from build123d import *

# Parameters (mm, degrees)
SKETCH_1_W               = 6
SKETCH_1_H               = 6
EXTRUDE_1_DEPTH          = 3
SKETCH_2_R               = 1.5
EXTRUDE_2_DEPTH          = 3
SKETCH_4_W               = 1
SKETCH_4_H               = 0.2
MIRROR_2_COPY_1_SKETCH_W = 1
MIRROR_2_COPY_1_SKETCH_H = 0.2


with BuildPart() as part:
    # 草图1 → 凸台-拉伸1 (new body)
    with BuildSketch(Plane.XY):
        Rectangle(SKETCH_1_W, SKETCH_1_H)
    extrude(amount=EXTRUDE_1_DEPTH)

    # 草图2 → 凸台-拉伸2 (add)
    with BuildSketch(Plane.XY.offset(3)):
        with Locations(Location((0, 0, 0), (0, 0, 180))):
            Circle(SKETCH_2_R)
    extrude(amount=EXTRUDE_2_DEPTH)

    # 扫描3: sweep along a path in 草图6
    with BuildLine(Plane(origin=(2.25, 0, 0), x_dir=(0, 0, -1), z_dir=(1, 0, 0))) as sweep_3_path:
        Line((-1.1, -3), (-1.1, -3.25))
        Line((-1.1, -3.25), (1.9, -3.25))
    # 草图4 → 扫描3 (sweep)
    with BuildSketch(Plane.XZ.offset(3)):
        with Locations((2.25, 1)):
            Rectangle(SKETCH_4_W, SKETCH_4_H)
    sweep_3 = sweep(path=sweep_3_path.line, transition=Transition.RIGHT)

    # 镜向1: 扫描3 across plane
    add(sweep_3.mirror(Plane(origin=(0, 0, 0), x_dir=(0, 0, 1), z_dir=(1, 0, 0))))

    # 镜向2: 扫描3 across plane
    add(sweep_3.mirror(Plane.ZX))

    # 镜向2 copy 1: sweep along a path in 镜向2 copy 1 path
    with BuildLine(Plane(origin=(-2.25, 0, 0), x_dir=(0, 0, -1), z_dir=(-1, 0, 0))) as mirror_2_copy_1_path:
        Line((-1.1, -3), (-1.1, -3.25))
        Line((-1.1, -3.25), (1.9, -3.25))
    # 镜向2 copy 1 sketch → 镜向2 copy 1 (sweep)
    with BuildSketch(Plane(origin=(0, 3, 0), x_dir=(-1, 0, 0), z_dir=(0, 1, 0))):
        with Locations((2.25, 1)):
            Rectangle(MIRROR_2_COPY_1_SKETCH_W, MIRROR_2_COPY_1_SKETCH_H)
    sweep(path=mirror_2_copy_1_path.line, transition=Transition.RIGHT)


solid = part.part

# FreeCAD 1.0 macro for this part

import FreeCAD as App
import Part
import Sketcher

V = App.Vector
Q = App.Units.Quantity

doc = App.newDocument("Part")
body = doc.addObject("PartDesign::Body", "Body")

# Sketch on XY plane
sketch1 = body.newObject("Sketcher::SketchObject", "Sketch")
sketch1.AttachmentSupport = (doc.getObject("XY_Plane"), [""])
sketch1.MapMode = "FlatFace"
sketch1.addGeometry([
    Part.LineSegment(V(-3, 3, 0), V(-3, -3, 0)),
    Part.LineSegment(V(-3, -3, 0), V(3, -3, 0)),
    Part.LineSegment(V(3, -3, 0), V(3, 3, 0)),
    Part.LineSegment(V(3, 3, 0), V(-3, 3, 0)),
], False)
sketch1.addConstraint([
    Sketcher.Constraint("Coincident", 0, 2, 1, 1),
    Sketcher.Constraint("Coincident", 1, 2, 2, 1),
    Sketcher.Constraint("Coincident", 2, 2, 3, 1),
    Sketcher.Constraint("Coincident", 3, 2, 0, 1),
    Sketcher.Constraint("Vertical", 0),
    Sketcher.Constraint("Horizontal", 1),
    Sketcher.Constraint("Vertical", 2),
    Sketcher.Constraint("Horizontal", 3),
    Sketcher.Constraint("Symmetric", 0, 2, 2, 2, -1, 1),
    Sketcher.Constraint("Equal", 3, 0),
    Sketcher.Constraint("DistanceX", 1, 1, 1, 2, Q("6 mm")),
])
pad1 = body.newObject("PartDesign::Pad", "Pad")
pad1.Profile = sketch1
pad1.Length = 3

# Sketch on XY plane
sketch2 = body.newObject("Sketcher::SketchObject", "Sketch001")
sketch2.AttachmentSupport = (doc.getObject("XY_Plane"), [""])
sketch2.MapMode = "FlatFace"
sketch2.AttachmentOffset = App.Placement(V(0, 0, 3), App.Rotation())
sketch2.addGeometry(Part.Circle(V(0, 0, 0), V(0, 0, 1), 1.5), False)
sketch2.addConstraint([
    Sketcher.Constraint("Coincident", 0, 3, -1, 1),
    Sketcher.Constraint("Diameter", 0, Q("3 mm")),
])
pad2 = body.newObject("PartDesign::Pad", "Pad001")
pad2.Profile = sketch2
pad2.Length = 3

# Sketch on XZ plane
sketch3 = body.newObject("Sketcher::SketchObject", "Sketch002")
sketch3.AttachmentSupport = (doc.getObject("XZ_Plane"), [""])
sketch3.MapMode = "FlatFace"
sketch3.AttachmentOffset = App.Placement(V(0, 0, 3), App.Rotation())
sketch3.addGeometry([
    Part.LineSegment(V(1.75, 1.1, 0), V(1.75, 0.9, 0)),
    Part.LineSegment(V(1.75, 0.9, 0), V(2.75, 0.9, 0)),
    Part.LineSegment(V(2.75, 0.9, 0), V(2.75, 1.1, 0)),
    Part.LineSegment(V(2.75, 1.1, 0), V(1.75, 1.1, 0)),
], False)
sketch3.addConstraint([
    Sketcher.Constraint("Coincident", 0, 2, 1, 1),
    Sketcher.Constraint("Coincident", 1, 2, 2, 1),
    Sketcher.Constraint("Coincident", 2, 2, 3, 1),
    Sketcher.Constraint("Coincident", 3, 2, 0, 1),
    Sketcher.Constraint("Vertical", 0),
    Sketcher.Constraint("Horizontal", 1),
    Sketcher.Constraint("Vertical", 2),
    Sketcher.Constraint("Horizontal", 3),
    Sketcher.Constraint("DistanceX", 1, 1, 1, 2, Q("1 mm")),
    Sketcher.Constraint("DistanceY", 0, 2, 0, 1, Q("0.2 mm")),
    Sketcher.Constraint("DistanceY", -1, 1, 0, 2, Q("0.9 mm")),
    Sketcher.Constraint("DistanceX", -1, 1, 0, 2, Q("1.75 mm")),
])

# Sketch on YZ plane
sketch4 = body.newObject("Sketcher::SketchObject", "Sketch003")
sketch4.AttachmentSupport = (doc.getObject("YZ_Plane"), [""])
sketch4.MapMode = "FlatFace"
sketch4.AttachmentOffset = App.Placement(V(0, 0, 2.25), App.Rotation())
sketch4.addGeometry([
    Part.LineSegment(V(-3, 1.1, 0), V(-3.25, 1.1, 0)),
    Part.LineSegment(V(-3.25, 1.1, 0), V(-3.25, -1.9, 0)),
], False)
sketch4.addConstraint([
    Sketcher.Constraint("Coincident", 0, 2, 1, 1),
    Sketcher.Constraint("Horizontal", 0),
    Sketcher.Constraint("Vertical", 1),
    Sketcher.Constraint("DistanceY", 1, 2, 1, 1, Q("3 mm")),
    Sketcher.Constraint("DistanceX", 0, 1, -1, 1, Q("3 mm")),
    Sketcher.Constraint("DistanceX", 0, 2, 0, 1, Q("0.25 mm")),
    Sketcher.Constraint("DistanceY", -1, 1, 0, 1, Q("1.1 mm")),
])
doc.recompute()

additivepipe = body.newObject("PartDesign::AdditivePipe", "AdditivePipe")
additivepipe.Profile = sketch3
additivepipe.Spine = (sketch4, ["Edge1", "Edge2"])
additivepipe.Transition = "Right corner"
doc.recompute()

mirrored = body.newObject("PartDesign::Mirrored", "Mirrored")
mirrored.Originals = [additivepipe]
mirrored.MirrorPlane = (doc.getObject("YZ_Plane"), [""])
body.Tip = mirrored
doc.recompute()

mirrored2 = body.newObject("PartDesign::Mirrored", "Mirrored001")
mirrored2.Originals = [additivepipe]
mirrored2.MirrorPlane = (doc.getObject("XZ_Plane"), [""])
body.Tip = mirrored2

# Sketch on XZ plane
sketch5 = body.newObject("Sketcher::SketchObject", "Sketch004")
sketch5.AttachmentSupport = (doc.getObject("XZ_Plane"), [""])
sketch5.MapMode = "FlatFace"
sketch5.AttachmentOffset = App.Placement(V(0, 0, -3), App.Rotation())
sketch5.addGeometry([
    Part.LineSegment(V(-1.75, 1.1, 0), V(-1.75, 0.9, 0)),
    Part.LineSegment(V(-1.75, 0.9, 0), V(-2.75, 0.9, 0)),
    Part.LineSegment(V(-2.75, 0.9, 0), V(-2.75, 1.1, 0)),
    Part.LineSegment(V(-2.75, 1.1, 0), V(-1.75, 1.1, 0)),
], False)
sketch5.addConstraint([
    Sketcher.Constraint("Coincident", 0, 2, 1, 1),
    Sketcher.Constraint("Coincident", 1, 2, 2, 1),
    Sketcher.Constraint("Coincident", 2, 2, 3, 1),
    Sketcher.Constraint("Coincident", 3, 2, 0, 1),
    Sketcher.Constraint("Vertical", 0),
    Sketcher.Constraint("Horizontal", 1),
    Sketcher.Constraint("Vertical", 2),
    Sketcher.Constraint("Horizontal", 3),
    Sketcher.Constraint("DistanceX", 1, 2, 1, 1, Q("1 mm")),
    Sketcher.Constraint("DistanceY", 0, 2, 0, 1, Q("0.2 mm")),
    Sketcher.Constraint("DistanceY", -1, 1, 0, 2, Q("0.9 mm")),
    Sketcher.Constraint("DistanceX", 0, 2, -1, 1, Q("1.75 mm")),
])

# Sketch on YZ plane
sketch6 = body.newObject("Sketcher::SketchObject", "Sketch005")
sketch6.AttachmentSupport = (doc.getObject("YZ_Plane"), [""])
sketch6.MapMode = "FlatFace"
sketch6.AttachmentOffset = App.Placement(V(0, 0, -2.25), App.Rotation())
sketch6.addGeometry([
    Part.LineSegment(V(3, 1.1, 0), V(3.25, 1.1, 0)),
    Part.LineSegment(V(3.25, 1.1, 0), V(3.25, -1.9, 0)),
], False)
sketch6.addConstraint([
    Sketcher.Constraint("Coincident", 0, 2, 1, 1),
    Sketcher.Constraint("Horizontal", 0),
    Sketcher.Constraint("Vertical", 1),
    Sketcher.Constraint("DistanceY", 1, 2, 1, 1, Q("3 mm")),
    Sketcher.Constraint("DistanceX", -1, 1, 0, 1, Q("3 mm")),
    Sketcher.Constraint("DistanceX", 0, 1, 0, 2, Q("0.25 mm")),
    Sketcher.Constraint("DistanceY", -1, 1, 0, 1, Q("1.1 mm")),
])
doc.recompute()

additivepipe2 = body.newObject("PartDesign::AdditivePipe", "AdditivePipe001")
additivepipe2.Profile = sketch5
additivepipe2.Spine = (sketch6, ["Edge1", "Edge2"])
additivepipe2.Transition = "Right corner"

doc.recompute()
